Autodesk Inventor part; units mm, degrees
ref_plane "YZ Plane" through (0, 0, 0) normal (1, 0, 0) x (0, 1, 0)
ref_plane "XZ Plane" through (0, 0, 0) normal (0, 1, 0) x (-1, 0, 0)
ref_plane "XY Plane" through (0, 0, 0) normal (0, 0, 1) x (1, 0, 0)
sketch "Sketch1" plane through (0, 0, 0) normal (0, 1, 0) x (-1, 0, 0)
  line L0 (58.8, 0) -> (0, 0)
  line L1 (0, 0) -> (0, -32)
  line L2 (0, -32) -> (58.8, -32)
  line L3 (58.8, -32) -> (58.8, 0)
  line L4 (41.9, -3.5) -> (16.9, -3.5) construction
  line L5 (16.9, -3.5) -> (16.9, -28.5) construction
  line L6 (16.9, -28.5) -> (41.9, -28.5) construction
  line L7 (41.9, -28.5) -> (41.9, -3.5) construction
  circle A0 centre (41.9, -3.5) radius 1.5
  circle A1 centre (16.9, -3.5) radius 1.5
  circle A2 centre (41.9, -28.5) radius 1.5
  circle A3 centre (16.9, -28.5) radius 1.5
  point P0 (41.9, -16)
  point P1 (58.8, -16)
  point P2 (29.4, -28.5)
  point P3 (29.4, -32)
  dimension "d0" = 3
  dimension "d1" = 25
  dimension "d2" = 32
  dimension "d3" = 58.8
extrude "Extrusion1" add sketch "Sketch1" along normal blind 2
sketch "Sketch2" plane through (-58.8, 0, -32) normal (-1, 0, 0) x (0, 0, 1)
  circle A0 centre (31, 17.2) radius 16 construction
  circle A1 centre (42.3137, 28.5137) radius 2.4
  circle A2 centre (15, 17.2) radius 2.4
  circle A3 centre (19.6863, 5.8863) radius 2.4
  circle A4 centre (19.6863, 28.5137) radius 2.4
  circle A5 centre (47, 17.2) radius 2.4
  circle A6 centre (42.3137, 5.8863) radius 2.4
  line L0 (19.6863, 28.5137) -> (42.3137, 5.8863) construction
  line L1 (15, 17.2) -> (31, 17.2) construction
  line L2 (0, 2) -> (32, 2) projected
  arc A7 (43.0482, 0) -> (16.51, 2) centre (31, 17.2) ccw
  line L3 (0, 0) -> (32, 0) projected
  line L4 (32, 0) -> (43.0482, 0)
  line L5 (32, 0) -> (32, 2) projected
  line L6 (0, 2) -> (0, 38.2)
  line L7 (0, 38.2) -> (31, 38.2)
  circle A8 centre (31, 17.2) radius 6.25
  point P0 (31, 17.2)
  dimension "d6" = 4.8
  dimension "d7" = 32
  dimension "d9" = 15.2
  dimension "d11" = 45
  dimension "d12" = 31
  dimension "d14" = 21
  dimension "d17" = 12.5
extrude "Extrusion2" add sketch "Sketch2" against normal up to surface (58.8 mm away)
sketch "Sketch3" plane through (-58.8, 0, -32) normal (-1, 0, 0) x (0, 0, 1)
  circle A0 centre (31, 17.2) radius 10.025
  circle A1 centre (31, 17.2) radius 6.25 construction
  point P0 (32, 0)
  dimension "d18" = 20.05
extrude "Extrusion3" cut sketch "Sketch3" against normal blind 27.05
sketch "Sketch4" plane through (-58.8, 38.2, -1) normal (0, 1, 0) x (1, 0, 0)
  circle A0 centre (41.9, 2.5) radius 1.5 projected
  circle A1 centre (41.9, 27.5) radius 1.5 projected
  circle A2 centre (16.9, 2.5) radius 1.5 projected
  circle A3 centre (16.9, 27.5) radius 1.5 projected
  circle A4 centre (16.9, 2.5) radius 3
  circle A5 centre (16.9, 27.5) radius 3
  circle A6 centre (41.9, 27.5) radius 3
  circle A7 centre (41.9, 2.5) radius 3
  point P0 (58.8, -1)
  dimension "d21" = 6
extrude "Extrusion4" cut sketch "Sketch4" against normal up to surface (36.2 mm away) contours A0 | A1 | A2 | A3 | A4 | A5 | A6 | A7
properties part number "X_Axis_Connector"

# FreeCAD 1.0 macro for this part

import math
import FreeCAD as App
import Part
import Sketcher
from FreeCAD import Vector


def add_polygon(sketch, points):
    """Adds a closed chain of lines whose ends are joined by coincident constraints."""
    first, n = sketch.GeometryCount, len(points)
    for a, b in zip(points, points[1:] + points[:1]):
        sketch.addGeometry(Part.LineSegment(App.Vector(*a, 0), App.Vector(*b, 0)), False)
    for i in range(n):
        sketch.addConstraint(Sketcher.Constraint("Coincident", first + i, 2, first + (i + 1) % n, 1))

doc = App.newDocument("Part")
body = doc.addObject("PartDesign::Body", "Body")

# Sketch on XZ plane
sketch1 = body.newObject("Sketcher::SketchObject", "Sketch")
sketch1.AttachmentSupport = (doc.getObject("XZ_Plane"), [""])
sketch1.MapMode = "FlatFace"
add_polygon(sketch1, [(-58.8, -32), (-58.8, 0), (0, 0), (0, -32)])  # lines 0-3
sketch1.addGeometry(Part.Circle(Vector(-16.9, -28.5, 0), Vector(0, 0, 1), 1.5), False)  # 4
sketch1.addGeometry(Part.Circle(Vector(-41.9, -28.5, 0), Vector(0, 0, 1), 1.5), False)  # 5
sketch1.addGeometry(Part.Circle(Vector(-16.9, -3.5, 0), Vector(0, 0, 1), 1.5), False)  # 6
sketch1.addGeometry(Part.Circle(Vector(-41.9, -3.5, 0), Vector(0, 0, 1), 1.5), False)  # 7
sketch1.addConstraint([
    Sketcher.Constraint("Vertical", 0),
    Sketcher.Constraint("Horizontal", 1),
    Sketcher.Constraint("Vertical", 2),
    Sketcher.Constraint("Horizontal", 3),
    Sketcher.Constraint("Coincident", 1, 2, -1, 1),
    Sketcher.Constraint("Equal", 4, 5),
    Sketcher.Constraint("Equal", 5, 6),
    Sketcher.Constraint("Equal", 6, 7),
    Sketcher.Constraint("Horizontal", 4, 3, 5, 3),
    Sketcher.Constraint("Horizontal", 6, 3, 7, 3),
    Sketcher.Constraint("Vertical", 4, 3, 6, 3),
    Sketcher.Constraint("Vertical", 5, 3, 7, 3),
    Sketcher.Constraint("Diameter", 4, 3.0),
    Sketcher.Constraint("DistanceY", 0, 1, 0, 2, 32.0),
    Sketcher.Constraint("DistanceX", 1, 1, 1, 2, 58.8),
    Sketcher.Constraint("DistanceX", 5, 3, 4, 3, 25.0),
    Sketcher.Constraint("DistanceY", 4, 3, 6, 3, 25.0),
    Sketcher.Constraint("DistanceX", 4, 3, -1, 1, 16.9),
    Sketcher.Constraint("DistanceY", 4, 3, -1, 1, 28.5),
])
pad1 = body.newObject("PartDesign::Pad", "Pad")
pad1.Profile = sketch1
pad1.Length = 2
pad1.Reversed = True

# Sketch on YZ plane
sketch2 = body.newObject("Sketcher::SketchObject", "Sketch001")
sketch2.AttachmentSupport = (doc.getObject("YZ_Plane"), [""])
sketch2.MapMode = "FlatFace"
sketch2.AttachmentOffset = App.Placement(Vector(0, 0, -58.8), App.Rotation())
sketch2.addGeometry([
    Part.LineSegment(Vector(38.2, -32, 0), Vector(2, -32, 0)),  # 0
    Part.LineSegment(Vector(2, -32, 0), Vector(2, 0, 0)),  # 1
    Part.LineSegment(Vector(2, 0, 0), Vector(0, 0, 0)),  # 2
    Part.LineSegment(Vector(0, 0, 0), Vector(0, 11, 0)),  # 3
    Part.ArcOfCircle(Part.Circle(Vector(17.2, -1, 0), Vector(0, 0, 1), 21), math.radians(0), math.radians(145)),  # 4
    Part.LineSegment(Vector(38.2, -1, 0), Vector(38.2, -32, 0)),  # 5
    Part.Circle(Vector(28.5, 10.3, 0), Vector(0, 0, 1), 2.4),  # 6
    Part.Circle(Vector(5.9, -12.3, 0), Vector(0, 0, 1), 2.4),  # 7
    Part.Circle(Vector(17.2, -17, 0), Vector(0, 0, 1), 2.4),  # 8
    Part.Circle(Vector(5.9, 10.3, 0), Vector(0, 0, 1), 2.4),  # 9
    Part.Circle(Vector(17.2, -1, 0), Vector(0, 0, 1), 6.2),  # 10
    Part.Circle(Vector(17.2, 15, 0), Vector(0, 0, 1), 2.4),  # 11
    Part.Circle(Vector(28.5, -12.3, 0), Vector(0, 0, 1), 2.4),  # 12
], False)
sketch2.addConstraint([
    Sketcher.Constraint("Coincident", 0, 2, 1, 1),
    Sketcher.Constraint("Coincident", 1, 2, 2, 1),
    Sketcher.Constraint("Coincident", 2, 2, 3, 1),
    Sketcher.Constraint("Coincident", 3, 2, 4, 2),
    Sketcher.Constraint("Tangent", 4, 1, 5, 1),
    Sketcher.Constraint("Coincident", 5, 2, 0, 1),
    Sketcher.Constraint("Horizontal", 0),
    Sketcher.Constraint("Vertical", 1),
    Sketcher.Constraint("Horizontal", 2),
    Sketcher.Constraint("Vertical", 3),
    Sketcher.Constraint("Vertical", 5),
    Sketcher.Constraint("Coincident", 2, 2, -1, 1),
    Sketcher.Constraint("Coincident", 10, 3, 4, 3),
    Sketcher.Constraint("Equal", 6, 7),
    Sketcher.Constraint("Equal", 7, 8),
    Sketcher.Constraint("Equal", 8, 9),
    Sketcher.Constraint("Equal", 9, 11),
    Sketcher.Constraint("Equal", 11, 12),
    Sketcher.Constraint("Horizontal", 6, 3, 9, 3),
    Sketcher.Constraint("Horizontal", 7, 3, 12, 3),
    Sketcher.Constraint("Vertical", 4, 3, 8, 3),
    Sketcher.Constraint("Vertical", 7, 3, 9, 3),
    Sketcher.Constraint("Vertical", 10, 3, 11, 3),
    Sketcher.Constraint("Vertical", 6, 3, 12, 3),
    Sketcher.Constraint("Radius", 4, 21.0),
    Sketcher.Constraint("Diameter", 6, 4.8),
    Sketcher.Constraint("Diameter", 10, 12.5),
    Sketcher.Constraint("DistanceY", 1, 1, 1, 2, 32.0),
    Sketcher.Constraint("DistanceY", 5, 2, 5, 1, 31.0),
    Sketcher.Constraint("DistanceX", 0, 2, 8, 3, 15.2),
    Sketcher.Constraint("DistanceX", 2, 2, 2, 1, 2.0),
    Sketcher.Constraint("DistanceY", 8, 3, -1, 1, 17.0),
    Sketcher.Constraint("DistanceY", -1, 1, 11, 3, 15.0),
    Sketcher.Constraint("DistanceX", -1, 1, 6, 3, 28.5137),
    Sketcher.Constraint("DistanceY", -1, 1, 6, 3, 10.3137),
    Sketcher.Constraint("DistanceX", -1, 1, 7, 3, 5.8863),
    Sketcher.Constraint("DistanceY", 7, 3, -1, 1, 12.3137),
])
pad2 = body.newObject("PartDesign::Pad", "Pad001")
pad2.Profile = sketch2
pad2.Length = 58.8

# Sketch on YZ plane
sketch3 = body.newObject("Sketcher::SketchObject", "Sketch002")
sketch3.AttachmentSupport = (doc.getObject("YZ_Plane"), [""])
sketch3.MapMode = "FlatFace"
sketch3.AttachmentOffset = App.Placement(Vector(0, 0, -58.8), App.Rotation())
sketch3.addGeometry(Part.Circle(Vector(17, -1, 0), Vector(0, 0, 1), 10), False)
sketch3.addConstraint([
    Sketcher.Constraint("Diameter", 0, 20.05),
    Sketcher.Constraint("DistanceY", 0, 3, -1, 1, 1.0),
    Sketcher.Constraint("DistanceX", -1, 1, 0, 3, 17.2),
])
pocket1 = body.newObject("PartDesign::Pocket", "Pocket")
pocket1.Profile = sketch3
pocket1.Length = 27.05
pocket1.Reversed = True

# Sketch on XZ plane
sketch4 = body.newObject("Sketcher::SketchObject", "Sketch003")
sketch4.AttachmentSupport = (doc.getObject("XZ_Plane"), [""])
sketch4.MapMode = "FlatFace"
sketch4.AttachmentOffset = App.Placement(Vector(0, 0, -38.2), App.Rotation())
sketch4.addGeometry([
    Part.Circle(Vector(-16.9, -3.5, 0), Vector(0, 0, 1), 3),
    Part.Circle(Vector(-16.9, -28.5, 0), Vector(0, 0, 1), 3),
    Part.Circle(Vector(-41.9, -3.5, 0), Vector(0, 0, 1), 3),
    Part.Circle(Vector(-41.9, -28.5, 0), Vector(0, 0, 1), 3),
], False)
sketch4.addConstraint([
    Sketcher.Constraint("Equal", 0, 1),
    Sketcher.Constraint("Equal", 1, 2),
    Sketcher.Constraint("Equal", 2, 3),
    Sketcher.Constraint("Horizontal", 0, 3, 2, 3),
    Sketcher.Constraint("Horizontal", 1, 3, 3, 3),
    Sketcher.Constraint("Vertical", 0, 3, 1, 3),
    Sketcher.Constraint("Vertical", 2, 3, 3, 3),
    Sketcher.Constraint("Diameter", 0, 6.0),
    Sketcher.Constraint("DistanceY", 1, 3, 0, 3, 25.0),
    Sketcher.Constraint("DistanceX", 2, 3, 0, 3, 25.0),
    Sketcher.Constraint("DistanceX", 0, 3, -1, 1, 16.9),
    Sketcher.Constraint("DistanceY", 0, 3, -1, 1, 3.5),
])
pocket2 = body.newObject("PartDesign::Pocket", "Pocket001")
pocket2.Profile = sketch4
pocket2.Length = 36.2
pocket2.Reversed = True

doc.recompute()
